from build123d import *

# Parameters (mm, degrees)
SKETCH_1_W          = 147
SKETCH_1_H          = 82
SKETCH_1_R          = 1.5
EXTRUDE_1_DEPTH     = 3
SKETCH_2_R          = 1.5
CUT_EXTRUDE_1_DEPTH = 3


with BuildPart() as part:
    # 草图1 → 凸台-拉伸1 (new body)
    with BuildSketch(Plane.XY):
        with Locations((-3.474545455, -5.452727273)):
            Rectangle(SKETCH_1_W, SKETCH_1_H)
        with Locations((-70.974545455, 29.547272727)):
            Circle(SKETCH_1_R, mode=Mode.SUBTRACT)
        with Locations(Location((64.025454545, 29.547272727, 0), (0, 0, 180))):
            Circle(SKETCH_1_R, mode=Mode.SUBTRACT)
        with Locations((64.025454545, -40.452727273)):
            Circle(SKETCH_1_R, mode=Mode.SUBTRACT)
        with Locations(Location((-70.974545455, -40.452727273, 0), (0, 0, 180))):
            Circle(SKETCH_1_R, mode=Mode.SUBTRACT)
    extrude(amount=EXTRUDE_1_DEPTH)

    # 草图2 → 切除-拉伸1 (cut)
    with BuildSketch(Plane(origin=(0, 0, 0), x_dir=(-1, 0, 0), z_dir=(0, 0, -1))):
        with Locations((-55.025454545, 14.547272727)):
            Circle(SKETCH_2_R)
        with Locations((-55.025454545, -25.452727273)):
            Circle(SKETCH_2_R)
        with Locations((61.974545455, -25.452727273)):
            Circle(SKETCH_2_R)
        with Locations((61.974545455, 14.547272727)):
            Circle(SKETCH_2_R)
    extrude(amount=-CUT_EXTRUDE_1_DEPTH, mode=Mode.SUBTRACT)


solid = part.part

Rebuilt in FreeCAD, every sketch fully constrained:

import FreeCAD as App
import Part
import Sketcher
from FreeCAD import Vector


def add_polygon(sketch, points):
    """Adds a closed chain of lines whose ends are joined by coincident constraints."""
    first, n = sketch.GeometryCount, len(points)
    for a, b in zip(points, points[1:] + points[:1]):
        sketch.addGeometry(Part.LineSegment(App.Vector(*a, 0), App.Vector(*b, 0)), False)
    for i in range(n):
        sketch.addConstraint(Sketcher.Constraint("Coincident", first + i, 2, first + (i + 1) % n, 1))

doc = App.newDocument("Part")
body = doc.addObject("PartDesign::Body", "Body")

# Sketch on XY plane
sketch1 = body.newObject("Sketcher::SketchObject", "Sketch")
sketch1.AttachmentSupport = (doc.getObject("XY_Plane"), [""])
sketch1.MapMode = "FlatFace"
add_polygon(sketch1, [(-77, 35.5), (-77, -46.5), (70, -46.5), (70, 35.5)])  # lines 0-3
sketch1.addGeometry(Part.Circle(Vector(-71, -40.5, 0), Vector(0, 0, 1), 1.5), False)  # 4
sketch1.addGeometry(Part.Circle(Vector(64, -40.5, 0), Vector(0, 0, 1), 1.5), False)  # 5
sketch1.addGeometry(Part.Circle(Vector(-71, 29.5, 0), Vector(0, 0, 1), 1.5), False)  # 6
sketch1.addGeometry(Part.Circle(Vector(64, 29.5, 0), Vector(0, 0, 1), 1.5), False)  # 7
sketch1.addConstraint([
    Sketcher.Constraint("Vertical", 0),
    Sketcher.Constraint("Horizontal", 1),
    Sketcher.Constraint("Vertical", 2),
    Sketcher.Constraint("Horizontal", 3),
    Sketcher.Constraint("Equal", 4, 5),
    Sketcher.Constraint("Equal", 5, 6),
    Sketcher.Constraint("Equal", 6, 7),
    Sketcher.Constraint("Horizontal", 4, 3, 5, 3),
    Sketcher.Constraint("Horizontal", 6, 3, 7, 3),
    Sketcher.Constraint("Vertical", 4, 3, 6, 3),
    Sketcher.Constraint("Vertical", 5, 3, 7, 3),
    Sketcher.Constraint("Diameter", 4, 3.0),
    Sketcher.Constraint("DistanceX", 1, 1, 1, 2, 147.0),
    Sketcher.Constraint("DistanceY", 0, 2, 0, 1, 82.0),
    Sketcher.Constraint("DistanceX", 4, 3, 5, 3, 135.0),
    Sketcher.Constraint("DistanceY", 4, 3, 6, 3, 70.0),
    Sketcher.Constraint("DistanceX", 0, 2, 4, 3, 6.0),
    Sketcher.Constraint("DistanceY", 0, 2, 4, 3, 6.0),
    Sketcher.Constraint("DistanceX", 4, 3, -1, 1, 70.974545),
    Sketcher.Constraint("DistanceY", 4, 3, -1, 1, 40.452727),
])
pad1 = body.newObject("PartDesign::Pad", "Pad")
pad1.Profile = sketch1
pad1.Length = 3

# Sketch on XY plane
sketch2 = body.newObject("Sketcher::SketchObject", "Sketch001")
sketch2.AttachmentSupport = (doc.getObject("XY_Plane"), [""])
sketch2.MapMode = "FlatFace"
sketch2.addGeometry([
    Part.Circle(Vector(55, 14.5, 0), Vector(0, 0, 1), 1.5),
    Part.Circle(Vector(55, -25.5, 0), Vector(0, 0, 1), 1.5),
    Part.Circle(Vector(-62, -25.5, 0), Vector(0, 0, 1), 1.5),
    Part.Circle(Vector(-62, 14.5, 0), Vector(0, 0, 1), 1.5),
], False)
sketch2.addConstraint([
    Sketcher.Constraint("Equal", 0, 1),
    Sketcher.Constraint("Equal", 1, 2),
    Sketcher.Constraint("Equal", 2, 3),
    Sketcher.Constraint("Horizontal", 1, 3, 2, 3),
    Sketcher.Constraint("Horizontal", 0, 3, 3, 3),
    Sketcher.Constraint("Vertical", 0, 3, 1, 3),
    Sketcher.Constraint("Vertical", 2, 3, 3, 3),
    Sketcher.Constraint("Diameter", 0, 3.0),
    Sketcher.Constraint("DistanceY", 1, 3, 0, 3, 40.0),
    Sketcher.Constraint("DistanceX", 2, 3, 1, 3, 117.0),
    Sketcher.Constraint("DistanceX", -1, 1, 0, 3, 55.025455),
    Sketcher.Constraint("DistanceY", -1, 1, 0, 3, 14.547273),
])
pocket1 = body.newObject("PartDesign::Pocket", "Pocket")
pocket1.Profile = sketch2
pocket1.Length = 3
pocket1.Reversed = True

doc.recompute()
